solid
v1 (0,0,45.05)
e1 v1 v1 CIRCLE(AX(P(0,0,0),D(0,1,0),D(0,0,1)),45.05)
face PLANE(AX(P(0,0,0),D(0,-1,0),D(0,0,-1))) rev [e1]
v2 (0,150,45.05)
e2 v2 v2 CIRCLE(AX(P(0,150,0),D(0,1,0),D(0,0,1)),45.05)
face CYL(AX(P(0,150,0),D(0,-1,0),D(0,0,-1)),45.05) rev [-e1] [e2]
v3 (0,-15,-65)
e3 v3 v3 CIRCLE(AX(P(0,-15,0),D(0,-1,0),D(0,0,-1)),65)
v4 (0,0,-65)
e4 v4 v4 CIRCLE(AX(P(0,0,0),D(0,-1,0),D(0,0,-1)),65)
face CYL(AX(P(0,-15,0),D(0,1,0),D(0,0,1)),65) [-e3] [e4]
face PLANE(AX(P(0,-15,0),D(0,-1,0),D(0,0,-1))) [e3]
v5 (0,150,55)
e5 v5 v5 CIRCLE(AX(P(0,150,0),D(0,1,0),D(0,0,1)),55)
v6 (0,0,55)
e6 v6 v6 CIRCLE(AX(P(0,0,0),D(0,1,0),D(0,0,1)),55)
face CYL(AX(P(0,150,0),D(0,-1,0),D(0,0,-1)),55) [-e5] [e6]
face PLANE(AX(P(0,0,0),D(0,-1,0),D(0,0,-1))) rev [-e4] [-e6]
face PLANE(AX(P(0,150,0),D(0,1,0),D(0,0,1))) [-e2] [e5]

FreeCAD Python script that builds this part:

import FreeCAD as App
import Part
import Sketcher

V = App.Vector

doc = App.newDocument("Part")
body = doc.addObject("PartDesign::Body", "Body")

# Sketch on XZ plane
sketch1 = body.newObject("Sketcher::SketchObject", "Sketch")
sketch1.AttachmentSupport = (doc.getObject("XZ_Plane"), [""])
sketch1.MapMode = "FlatFace"
sketch1.addGeometry(Part.Circle(V(0, 0, 0), V(0, 0, 1), 55), False)
sketch1.addGeometry(Part.Circle(V(0, 0, 0), V(0, 0, 1), 45.05), False)
sketch1.addConstraint(Sketcher.Constraint("Coincident", 0, 3, -1, 1))
sketch1.addConstraint(Sketcher.Constraint("Coincident", 1, 3, -1, 1))
sketch1.addConstraint(Sketcher.Constraint("Diameter", 0, 110.0))
sketch1.addConstraint(Sketcher.Constraint("Diameter", 1, 90.1))
pad1 = body.newObject("PartDesign::Pad", "Pad")
pad1.Profile = sketch1
pad1.Length = 150
pad1.Reversed = True

# Sketch on XZ plane
sketch2 = body.newObject("Sketcher::SketchObject", "Sketch001")
sketch2.AttachmentSupport = (doc.getObject("XZ_Plane"), [""])
sketch2.MapMode = "FlatFace"
sketch2.addGeometry(Part.Circle(V(0, 0, 0), V(0, 0, 1), 65), False)
sketch2.addConstraint(Sketcher.Constraint("Coincident", 0, 3, -1, 1))
sketch2.addConstraint(Sketcher.Constraint("Diameter", 0, 130.0))
pad2 = body.newObject("PartDesign::Pad", "Pad001")
pad2.Profile = sketch2
pad2.Length = 15

doc.recompute()
